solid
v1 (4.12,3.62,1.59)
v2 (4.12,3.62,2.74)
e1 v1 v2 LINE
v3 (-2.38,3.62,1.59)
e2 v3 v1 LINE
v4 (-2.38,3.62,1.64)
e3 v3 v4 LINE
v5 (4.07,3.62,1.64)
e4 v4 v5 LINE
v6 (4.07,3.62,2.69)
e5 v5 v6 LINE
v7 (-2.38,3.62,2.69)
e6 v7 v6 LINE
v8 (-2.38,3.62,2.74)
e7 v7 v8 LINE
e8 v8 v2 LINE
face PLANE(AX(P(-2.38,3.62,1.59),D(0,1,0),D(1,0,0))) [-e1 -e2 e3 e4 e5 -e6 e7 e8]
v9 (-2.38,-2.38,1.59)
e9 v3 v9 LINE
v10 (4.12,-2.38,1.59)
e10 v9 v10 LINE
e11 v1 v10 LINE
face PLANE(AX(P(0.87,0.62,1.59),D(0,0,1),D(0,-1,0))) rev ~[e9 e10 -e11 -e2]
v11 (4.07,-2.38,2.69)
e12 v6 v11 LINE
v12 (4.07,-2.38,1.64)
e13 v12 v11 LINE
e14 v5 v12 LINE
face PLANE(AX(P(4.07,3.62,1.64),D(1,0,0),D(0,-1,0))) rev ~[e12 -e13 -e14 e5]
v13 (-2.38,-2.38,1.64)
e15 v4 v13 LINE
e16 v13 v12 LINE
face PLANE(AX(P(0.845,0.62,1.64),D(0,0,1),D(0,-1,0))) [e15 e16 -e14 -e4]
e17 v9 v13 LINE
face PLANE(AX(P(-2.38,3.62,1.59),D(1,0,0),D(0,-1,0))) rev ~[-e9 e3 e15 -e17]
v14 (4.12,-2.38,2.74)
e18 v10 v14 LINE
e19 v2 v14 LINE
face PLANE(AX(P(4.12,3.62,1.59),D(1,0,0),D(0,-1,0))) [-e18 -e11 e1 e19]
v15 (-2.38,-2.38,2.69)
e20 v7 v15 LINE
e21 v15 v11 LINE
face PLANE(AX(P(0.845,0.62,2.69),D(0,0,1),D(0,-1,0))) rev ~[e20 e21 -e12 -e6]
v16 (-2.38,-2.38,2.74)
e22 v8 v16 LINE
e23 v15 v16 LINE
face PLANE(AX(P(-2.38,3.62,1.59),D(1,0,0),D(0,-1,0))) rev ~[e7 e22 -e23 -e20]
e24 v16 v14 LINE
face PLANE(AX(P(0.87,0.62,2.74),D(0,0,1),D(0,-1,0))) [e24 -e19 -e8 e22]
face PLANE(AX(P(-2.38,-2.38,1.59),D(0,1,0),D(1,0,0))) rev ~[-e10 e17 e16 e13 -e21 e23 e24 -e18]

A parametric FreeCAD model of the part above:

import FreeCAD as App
import Part
import Sketcher
from FreeCAD import Vector
Q = App.Units.Quantity


def add_polygon(sketch, points):
    """Adds a closed chain of lines whose ends are joined by coincident constraints."""
    first, n = sketch.GeometryCount, len(points)
    for a, b in zip(points, points[1:] + points[:1]):
        sketch.addGeometry(Part.LineSegment(App.Vector(*a, 0), App.Vector(*b, 0)), False)
    for i in range(n):
        sketch.addConstraint(Sketcher.Constraint("Coincident", first + i, 2, first + (i + 1) % n, 1))

doc = App.newDocument("Part")
body = doc.addObject("PartDesign::Body", "Body")

# Sketch on XY plane
sketch1 = body.newObject("Sketcher::SketchObject", "Sketch")
sketch1.AttachmentSupport = (doc.getObject("XY_Plane"), [""])
sketch1.MapMode = "FlatFace"
sketch1.AttachmentOffset = App.Placement(Vector(0, 0, 0.05), App.Rotation())
add_polygon(sketch1, [(0, 6), (0, 0), (6, 0), (6, 6)])  # lines 0-3
sketch1.addConstraint(Sketcher.Constraint("Vertical", 0))
sketch1.addConstraint(Sketcher.Constraint("Horizontal", 1))
sketch1.addConstraint(Sketcher.Constraint("Vertical", 2))
sketch1.addConstraint(Sketcher.Constraint("Horizontal", 3))
sketch1.addConstraint(Sketcher.Constraint("Coincident", 0, 2, -1, 1))
sketch1.addConstraint(Sketcher.Constraint("DistanceX", 1, 1, 1, 2, Q("6 mm")))
sketch1.addConstraint(Sketcher.Constraint("DistanceY", 0, 2, 0, 1, Q("6.45 mm")))
pad1 = body.newObject("PartDesign::Pad", "Pad")
pad1.Profile = sketch1
pad1.Length = 1.05
body2 = doc.addObject("PartDesign::Body", "Body001")

# Sketch on XY plane
sketch2 = body2.newObject("Sketcher::SketchObject", "Sketch001")
sketch2.AttachmentSupport = (doc.getObject("XY_Plane001"), [""])
sketch2.MapMode = "FlatFace"
add_polygon(sketch2, [(0, 6), (0, 0), (6, 0), (6, 6)])  # lines 0-3
sketch2.addConstraint(Sketcher.Constraint("Vertical", 0))
sketch2.addConstraint(Sketcher.Constraint("Horizontal", 1))
sketch2.addConstraint(Sketcher.Constraint("Vertical", 2))
sketch2.addConstraint(Sketcher.Constraint("Horizontal", 3))
sketch2.addConstraint(Sketcher.Constraint("Coincident", 0, 2, -1, 1))
sketch2.addConstraint(Sketcher.Constraint("DistanceX", 1, 1, 1, 2, Q("6 mm")))
sketch2.addConstraint(Sketcher.Constraint("DistanceY", 0, 2, 0, 1, Q("6.5 mm")))
pad2 = body2.newObject("PartDesign::Pad", "Pad001")
pad2.Profile = sketch2
pad2.Length = 1.15
doc.recompute()

boolean = body2.newObject("PartDesign::Boolean", "Boolean")
boolean.Type = "Cut"
boolean.addObjects([body])
body3 = doc.addObject("PartDesign::Body", "Body002")
doc.recompute()

body2.Placement = App.Placement(Vector(-2.38, 3.62, 1.59), App.Rotation(Vector(0, 0, 1), 270))
boolean2 = body3.newObject("PartDesign::Boolean", "Boolean001")
boolean2.Type = "Fuse"
boolean2.addObjects([body2])

doc.recompute()
